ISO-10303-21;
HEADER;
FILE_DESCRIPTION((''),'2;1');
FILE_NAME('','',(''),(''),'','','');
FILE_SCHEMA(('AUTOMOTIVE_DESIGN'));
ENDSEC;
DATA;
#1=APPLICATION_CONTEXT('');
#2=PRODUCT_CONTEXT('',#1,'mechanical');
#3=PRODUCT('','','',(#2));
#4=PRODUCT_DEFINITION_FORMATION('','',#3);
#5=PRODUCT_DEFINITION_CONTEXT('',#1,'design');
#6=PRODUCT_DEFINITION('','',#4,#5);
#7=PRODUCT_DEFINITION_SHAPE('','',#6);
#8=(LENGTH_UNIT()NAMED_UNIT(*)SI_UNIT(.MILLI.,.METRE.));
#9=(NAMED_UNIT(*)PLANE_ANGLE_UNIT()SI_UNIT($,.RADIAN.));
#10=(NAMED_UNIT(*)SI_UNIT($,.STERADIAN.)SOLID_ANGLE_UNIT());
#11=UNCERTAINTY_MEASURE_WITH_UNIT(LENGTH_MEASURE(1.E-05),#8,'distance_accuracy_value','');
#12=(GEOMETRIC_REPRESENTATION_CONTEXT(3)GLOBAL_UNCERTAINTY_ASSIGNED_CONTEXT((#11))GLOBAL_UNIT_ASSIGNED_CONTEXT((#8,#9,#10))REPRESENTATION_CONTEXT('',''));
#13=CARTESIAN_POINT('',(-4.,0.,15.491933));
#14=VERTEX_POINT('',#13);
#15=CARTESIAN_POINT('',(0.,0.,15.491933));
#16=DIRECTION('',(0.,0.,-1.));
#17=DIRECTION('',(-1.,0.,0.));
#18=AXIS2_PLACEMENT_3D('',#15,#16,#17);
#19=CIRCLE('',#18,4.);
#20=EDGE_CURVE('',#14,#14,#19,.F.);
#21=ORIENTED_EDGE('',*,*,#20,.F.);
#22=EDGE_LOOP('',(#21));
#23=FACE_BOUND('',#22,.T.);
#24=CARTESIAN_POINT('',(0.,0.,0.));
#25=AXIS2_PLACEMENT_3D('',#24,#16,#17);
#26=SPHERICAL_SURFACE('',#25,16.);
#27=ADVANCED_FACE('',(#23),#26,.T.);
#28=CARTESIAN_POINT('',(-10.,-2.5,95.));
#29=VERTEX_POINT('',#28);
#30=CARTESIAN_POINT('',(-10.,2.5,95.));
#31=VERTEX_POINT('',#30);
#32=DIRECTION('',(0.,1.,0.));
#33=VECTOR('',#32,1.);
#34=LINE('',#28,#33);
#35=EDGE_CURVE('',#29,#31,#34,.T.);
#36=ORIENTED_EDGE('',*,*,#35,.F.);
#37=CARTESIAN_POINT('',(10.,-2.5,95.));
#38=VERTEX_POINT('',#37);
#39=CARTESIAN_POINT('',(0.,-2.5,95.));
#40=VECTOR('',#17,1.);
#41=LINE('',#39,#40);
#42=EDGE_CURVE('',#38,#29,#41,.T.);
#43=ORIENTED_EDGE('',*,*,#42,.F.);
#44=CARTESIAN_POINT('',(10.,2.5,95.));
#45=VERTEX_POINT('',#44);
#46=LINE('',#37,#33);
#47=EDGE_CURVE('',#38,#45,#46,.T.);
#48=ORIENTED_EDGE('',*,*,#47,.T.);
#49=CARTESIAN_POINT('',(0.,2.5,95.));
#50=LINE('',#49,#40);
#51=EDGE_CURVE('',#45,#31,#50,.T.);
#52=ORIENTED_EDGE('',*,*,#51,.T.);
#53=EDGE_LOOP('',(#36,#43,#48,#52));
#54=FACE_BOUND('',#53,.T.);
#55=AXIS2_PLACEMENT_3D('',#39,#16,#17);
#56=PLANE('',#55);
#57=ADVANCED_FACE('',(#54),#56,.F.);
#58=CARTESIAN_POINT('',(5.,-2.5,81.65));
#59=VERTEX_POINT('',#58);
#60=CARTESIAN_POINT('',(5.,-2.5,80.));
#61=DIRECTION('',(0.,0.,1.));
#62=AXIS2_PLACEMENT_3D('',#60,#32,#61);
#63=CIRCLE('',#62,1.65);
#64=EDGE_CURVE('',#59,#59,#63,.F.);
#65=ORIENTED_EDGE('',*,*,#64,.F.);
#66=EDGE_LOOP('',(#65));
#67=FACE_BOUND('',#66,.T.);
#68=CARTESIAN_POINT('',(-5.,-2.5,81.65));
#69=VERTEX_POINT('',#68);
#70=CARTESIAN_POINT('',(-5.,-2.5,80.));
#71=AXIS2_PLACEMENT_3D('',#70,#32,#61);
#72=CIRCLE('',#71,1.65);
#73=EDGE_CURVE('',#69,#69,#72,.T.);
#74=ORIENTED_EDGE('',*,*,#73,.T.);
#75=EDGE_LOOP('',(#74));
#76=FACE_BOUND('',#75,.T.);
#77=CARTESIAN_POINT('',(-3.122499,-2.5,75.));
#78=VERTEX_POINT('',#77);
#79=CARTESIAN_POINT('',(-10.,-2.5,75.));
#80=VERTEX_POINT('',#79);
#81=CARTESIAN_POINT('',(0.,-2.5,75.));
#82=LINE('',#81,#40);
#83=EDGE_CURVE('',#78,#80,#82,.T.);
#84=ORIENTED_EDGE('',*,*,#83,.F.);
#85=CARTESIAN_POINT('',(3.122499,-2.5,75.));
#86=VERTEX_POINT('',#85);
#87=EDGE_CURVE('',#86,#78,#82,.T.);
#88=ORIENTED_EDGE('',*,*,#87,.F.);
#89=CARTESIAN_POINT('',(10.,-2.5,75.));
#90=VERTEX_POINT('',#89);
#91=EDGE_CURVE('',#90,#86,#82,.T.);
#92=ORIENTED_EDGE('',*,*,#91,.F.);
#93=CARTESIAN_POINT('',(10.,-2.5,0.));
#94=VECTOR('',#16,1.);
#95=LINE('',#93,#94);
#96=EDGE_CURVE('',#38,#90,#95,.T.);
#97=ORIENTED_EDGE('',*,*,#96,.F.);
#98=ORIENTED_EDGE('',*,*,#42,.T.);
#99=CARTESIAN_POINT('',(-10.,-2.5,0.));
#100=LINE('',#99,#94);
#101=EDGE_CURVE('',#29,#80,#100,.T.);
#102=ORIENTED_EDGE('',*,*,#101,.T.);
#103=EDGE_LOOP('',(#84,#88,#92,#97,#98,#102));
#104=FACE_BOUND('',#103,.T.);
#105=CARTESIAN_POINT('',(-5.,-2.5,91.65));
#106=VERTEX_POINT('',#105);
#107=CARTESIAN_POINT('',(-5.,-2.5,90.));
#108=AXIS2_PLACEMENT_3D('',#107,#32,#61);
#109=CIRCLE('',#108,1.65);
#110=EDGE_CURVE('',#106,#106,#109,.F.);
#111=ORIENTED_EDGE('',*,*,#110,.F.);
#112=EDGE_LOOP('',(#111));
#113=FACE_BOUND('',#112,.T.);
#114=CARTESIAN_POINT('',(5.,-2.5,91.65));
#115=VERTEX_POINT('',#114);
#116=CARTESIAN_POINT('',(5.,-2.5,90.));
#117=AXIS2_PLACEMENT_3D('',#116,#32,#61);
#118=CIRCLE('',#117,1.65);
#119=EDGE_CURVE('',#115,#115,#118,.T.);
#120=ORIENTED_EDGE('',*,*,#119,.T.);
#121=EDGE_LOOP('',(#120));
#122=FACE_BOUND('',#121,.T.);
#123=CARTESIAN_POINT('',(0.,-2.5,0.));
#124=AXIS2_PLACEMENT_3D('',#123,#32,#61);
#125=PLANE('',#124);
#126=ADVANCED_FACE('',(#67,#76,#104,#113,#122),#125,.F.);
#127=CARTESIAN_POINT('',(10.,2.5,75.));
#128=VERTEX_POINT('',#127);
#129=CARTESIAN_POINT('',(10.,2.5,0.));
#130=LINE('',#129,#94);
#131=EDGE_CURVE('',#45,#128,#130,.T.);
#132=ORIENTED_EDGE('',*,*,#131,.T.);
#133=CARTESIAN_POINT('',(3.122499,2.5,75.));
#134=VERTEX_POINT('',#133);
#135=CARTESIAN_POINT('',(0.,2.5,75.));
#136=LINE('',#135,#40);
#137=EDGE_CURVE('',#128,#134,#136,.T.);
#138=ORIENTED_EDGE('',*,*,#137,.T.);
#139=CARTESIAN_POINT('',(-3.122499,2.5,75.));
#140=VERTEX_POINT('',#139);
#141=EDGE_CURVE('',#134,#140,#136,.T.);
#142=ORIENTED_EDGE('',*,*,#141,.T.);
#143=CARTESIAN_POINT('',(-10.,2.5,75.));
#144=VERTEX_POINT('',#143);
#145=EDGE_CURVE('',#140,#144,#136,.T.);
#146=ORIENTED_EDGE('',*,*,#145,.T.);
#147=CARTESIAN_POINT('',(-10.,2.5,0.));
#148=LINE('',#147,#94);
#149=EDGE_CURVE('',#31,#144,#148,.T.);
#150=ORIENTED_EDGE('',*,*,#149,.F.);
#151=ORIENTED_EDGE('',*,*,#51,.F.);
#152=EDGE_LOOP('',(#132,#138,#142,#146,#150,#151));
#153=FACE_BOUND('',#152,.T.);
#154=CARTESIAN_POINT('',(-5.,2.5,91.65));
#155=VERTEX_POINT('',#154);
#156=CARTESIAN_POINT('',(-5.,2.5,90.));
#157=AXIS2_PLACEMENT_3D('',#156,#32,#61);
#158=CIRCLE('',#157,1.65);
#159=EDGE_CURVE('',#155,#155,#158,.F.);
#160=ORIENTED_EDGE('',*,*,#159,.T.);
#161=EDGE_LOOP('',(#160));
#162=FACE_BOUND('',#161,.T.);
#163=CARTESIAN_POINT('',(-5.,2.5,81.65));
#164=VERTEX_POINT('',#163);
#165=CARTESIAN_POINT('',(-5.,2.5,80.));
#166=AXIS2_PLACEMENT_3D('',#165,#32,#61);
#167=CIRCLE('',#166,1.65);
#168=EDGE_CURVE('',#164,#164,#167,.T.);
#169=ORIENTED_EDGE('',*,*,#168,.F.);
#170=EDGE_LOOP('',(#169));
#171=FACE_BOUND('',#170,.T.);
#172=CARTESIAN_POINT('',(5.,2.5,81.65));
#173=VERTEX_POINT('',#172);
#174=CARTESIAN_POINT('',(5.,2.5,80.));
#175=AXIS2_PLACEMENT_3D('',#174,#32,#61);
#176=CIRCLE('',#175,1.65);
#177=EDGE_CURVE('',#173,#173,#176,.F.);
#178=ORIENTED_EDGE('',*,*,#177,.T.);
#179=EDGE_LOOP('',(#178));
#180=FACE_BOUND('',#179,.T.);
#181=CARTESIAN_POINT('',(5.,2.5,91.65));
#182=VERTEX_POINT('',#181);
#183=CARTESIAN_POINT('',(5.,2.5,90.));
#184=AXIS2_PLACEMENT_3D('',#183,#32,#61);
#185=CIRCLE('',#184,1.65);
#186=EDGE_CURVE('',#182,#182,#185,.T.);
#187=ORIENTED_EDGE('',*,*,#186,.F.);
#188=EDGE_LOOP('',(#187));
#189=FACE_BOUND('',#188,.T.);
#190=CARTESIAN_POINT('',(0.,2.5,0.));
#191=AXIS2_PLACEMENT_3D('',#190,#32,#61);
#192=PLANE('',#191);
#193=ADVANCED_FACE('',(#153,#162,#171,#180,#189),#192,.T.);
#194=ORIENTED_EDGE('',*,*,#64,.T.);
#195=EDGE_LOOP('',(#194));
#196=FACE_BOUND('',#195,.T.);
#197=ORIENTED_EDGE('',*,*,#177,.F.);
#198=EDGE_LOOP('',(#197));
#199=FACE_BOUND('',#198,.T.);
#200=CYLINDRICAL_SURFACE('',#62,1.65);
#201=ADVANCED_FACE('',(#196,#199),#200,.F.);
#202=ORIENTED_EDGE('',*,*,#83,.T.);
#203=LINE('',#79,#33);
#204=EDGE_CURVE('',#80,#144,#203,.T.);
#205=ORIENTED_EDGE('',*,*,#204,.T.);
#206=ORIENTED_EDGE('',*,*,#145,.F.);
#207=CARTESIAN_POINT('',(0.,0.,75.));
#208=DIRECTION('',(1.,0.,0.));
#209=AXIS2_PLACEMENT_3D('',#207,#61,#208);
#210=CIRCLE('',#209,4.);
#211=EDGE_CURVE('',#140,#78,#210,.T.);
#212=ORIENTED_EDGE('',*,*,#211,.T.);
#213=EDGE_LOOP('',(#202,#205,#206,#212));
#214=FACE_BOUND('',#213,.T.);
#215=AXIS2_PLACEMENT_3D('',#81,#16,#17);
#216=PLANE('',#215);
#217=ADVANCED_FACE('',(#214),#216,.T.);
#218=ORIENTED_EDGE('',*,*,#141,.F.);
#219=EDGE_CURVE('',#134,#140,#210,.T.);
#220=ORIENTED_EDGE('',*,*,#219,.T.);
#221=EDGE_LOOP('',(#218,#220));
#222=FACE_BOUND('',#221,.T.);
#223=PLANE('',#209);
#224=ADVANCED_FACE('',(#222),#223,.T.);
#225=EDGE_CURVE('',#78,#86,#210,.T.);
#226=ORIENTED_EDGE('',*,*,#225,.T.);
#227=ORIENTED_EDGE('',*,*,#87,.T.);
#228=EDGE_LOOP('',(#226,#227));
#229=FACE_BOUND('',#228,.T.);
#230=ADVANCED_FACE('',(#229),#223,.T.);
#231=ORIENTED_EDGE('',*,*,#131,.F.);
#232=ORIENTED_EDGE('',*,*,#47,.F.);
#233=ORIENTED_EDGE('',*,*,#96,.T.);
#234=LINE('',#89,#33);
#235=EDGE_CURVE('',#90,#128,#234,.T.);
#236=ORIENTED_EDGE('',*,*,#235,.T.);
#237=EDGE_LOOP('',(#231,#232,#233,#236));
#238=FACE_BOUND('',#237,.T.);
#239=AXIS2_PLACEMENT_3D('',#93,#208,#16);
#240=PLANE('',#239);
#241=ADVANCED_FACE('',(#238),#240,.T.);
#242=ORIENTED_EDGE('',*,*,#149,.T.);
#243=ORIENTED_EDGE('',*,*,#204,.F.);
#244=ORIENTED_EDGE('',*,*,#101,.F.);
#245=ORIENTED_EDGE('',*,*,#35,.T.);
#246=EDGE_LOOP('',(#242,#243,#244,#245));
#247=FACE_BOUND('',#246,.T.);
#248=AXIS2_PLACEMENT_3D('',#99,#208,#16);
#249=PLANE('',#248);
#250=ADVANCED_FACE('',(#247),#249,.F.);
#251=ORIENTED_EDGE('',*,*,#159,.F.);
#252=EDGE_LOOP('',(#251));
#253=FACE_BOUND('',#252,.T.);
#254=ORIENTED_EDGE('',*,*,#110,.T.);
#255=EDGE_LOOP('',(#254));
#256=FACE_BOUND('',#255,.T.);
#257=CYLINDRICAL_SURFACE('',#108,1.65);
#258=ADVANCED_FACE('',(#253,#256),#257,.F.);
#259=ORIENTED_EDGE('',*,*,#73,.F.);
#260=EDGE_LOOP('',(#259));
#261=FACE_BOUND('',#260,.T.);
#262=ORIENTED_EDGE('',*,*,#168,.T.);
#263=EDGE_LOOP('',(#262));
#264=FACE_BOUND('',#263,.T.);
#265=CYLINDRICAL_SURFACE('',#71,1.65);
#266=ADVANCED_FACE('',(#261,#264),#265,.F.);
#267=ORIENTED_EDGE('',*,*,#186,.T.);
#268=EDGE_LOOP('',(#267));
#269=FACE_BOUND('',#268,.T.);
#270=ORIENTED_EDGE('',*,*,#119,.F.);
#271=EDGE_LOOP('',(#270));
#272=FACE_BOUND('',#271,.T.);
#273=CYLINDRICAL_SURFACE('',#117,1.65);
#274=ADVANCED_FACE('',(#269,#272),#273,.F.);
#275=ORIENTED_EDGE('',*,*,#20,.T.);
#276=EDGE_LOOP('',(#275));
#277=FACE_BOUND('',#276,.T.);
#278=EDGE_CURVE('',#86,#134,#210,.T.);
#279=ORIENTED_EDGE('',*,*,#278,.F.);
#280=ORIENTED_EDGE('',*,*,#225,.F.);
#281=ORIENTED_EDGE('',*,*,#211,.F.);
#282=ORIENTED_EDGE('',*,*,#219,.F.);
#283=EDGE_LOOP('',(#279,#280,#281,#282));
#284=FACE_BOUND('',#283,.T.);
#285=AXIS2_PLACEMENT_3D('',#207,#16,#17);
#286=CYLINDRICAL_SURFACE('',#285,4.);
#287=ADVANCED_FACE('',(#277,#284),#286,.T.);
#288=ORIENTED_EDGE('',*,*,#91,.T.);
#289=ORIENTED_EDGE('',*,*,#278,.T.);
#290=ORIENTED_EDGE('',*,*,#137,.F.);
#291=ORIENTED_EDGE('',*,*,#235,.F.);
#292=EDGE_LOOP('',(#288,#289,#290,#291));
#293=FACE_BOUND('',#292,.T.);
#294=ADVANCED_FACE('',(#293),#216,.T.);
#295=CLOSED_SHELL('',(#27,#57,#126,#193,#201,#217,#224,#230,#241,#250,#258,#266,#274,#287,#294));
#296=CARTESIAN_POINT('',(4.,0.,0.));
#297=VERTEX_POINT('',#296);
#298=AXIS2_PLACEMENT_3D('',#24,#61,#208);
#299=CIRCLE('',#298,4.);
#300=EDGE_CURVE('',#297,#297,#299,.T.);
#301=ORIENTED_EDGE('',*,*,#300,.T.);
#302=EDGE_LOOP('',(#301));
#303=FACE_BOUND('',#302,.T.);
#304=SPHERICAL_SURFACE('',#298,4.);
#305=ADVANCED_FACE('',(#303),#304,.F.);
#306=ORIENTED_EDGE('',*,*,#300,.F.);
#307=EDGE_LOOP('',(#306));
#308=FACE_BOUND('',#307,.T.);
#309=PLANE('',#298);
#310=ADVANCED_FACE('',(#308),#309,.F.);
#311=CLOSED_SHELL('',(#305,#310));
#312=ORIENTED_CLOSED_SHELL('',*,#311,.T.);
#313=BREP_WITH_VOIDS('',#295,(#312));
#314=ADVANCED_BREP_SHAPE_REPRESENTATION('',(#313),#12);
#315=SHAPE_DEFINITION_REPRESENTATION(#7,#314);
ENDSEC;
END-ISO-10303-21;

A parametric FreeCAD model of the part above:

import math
import FreeCAD as App
import Part
import Sketcher

V = App.Vector
Q = App.Units.Quantity

doc = App.newDocument("Part")
body = doc.addObject("PartDesign::Body", "Body")

# Sketch on XY plane
sketch1 = body.newObject("Sketcher::SketchObject", "Sketch")
sketch1.AttachmentSupport = (doc.getObject("XY_Plane"), [""])
sketch1.MapMode = "FlatFace"
sketch1.addGeometry(Part.ArcOfCircle(Part.Circle(V(0, 0, 0), V(0, 0, 1), 16), math.radians(-90), math.radians(0)), False)
sketch1.addGeometry(Part.ArcOfCircle(Part.Circle(V(0, 0, 0), V(0, 0, 1), 16), math.radians(0), math.radians(90)), False)
sketch1.addGeometry(Part.LineSegment(V(0, 16, 0), V(0, 4, 0)), False)
sketch1.addGeometry(Part.ArcOfCircle(Part.Circle(V(0, 0, 0), V(0, 0, 1), 4), math.radians(0), math.radians(90)), False)
sketch1.addGeometry(Part.ArcOfCircle(Part.Circle(V(0, 0, 0), V(0, 0, 1), 4), math.radians(-90), math.radians(0)), False)
sketch1.addGeometry(Part.LineSegment(V(0, -4, 0), V(0, -16, 0)), False)
sketch1.addConstraint(Sketcher.Constraint("Tangent", 0, 2, 1, 1))
sketch1.addConstraint(Sketcher.Constraint("Coincident", 1, 2, 2, 1))
sketch1.addConstraint(Sketcher.Constraint("Coincident", 2, 2, 3, 2))
sketch1.addConstraint(Sketcher.Constraint("Tangent", 3, 1, 4, 2))
sketch1.addConstraint(Sketcher.Constraint("Coincident", 4, 1, 5, 1))
sketch1.addConstraint(Sketcher.Constraint("Coincident", 5, 2, 0, 1))
sketch1.addConstraint(Sketcher.Constraint("Vertical", 2))
sketch1.addConstraint(Sketcher.Constraint("Vertical", 5))
sketch1.addConstraint(Sketcher.Constraint("Coincident", 0, 3, -1, 1))
sketch1.addConstraint(Sketcher.Constraint("Coincident", 3, 3, -1, 1))
sketch1.addConstraint(Sketcher.Constraint("Equal", 0, 1))
sketch1.addConstraint(Sketcher.Constraint("Equal", 3, 4))
sketch1.addConstraint(Sketcher.Constraint("PointOnObject", 0, 2, -1))
sketch1.addConstraint(Sketcher.Constraint("PointOnObject", 1, 2, -2))
sketch1.addConstraint(Sketcher.Constraint("PointOnObject", 3, 1, -1))
sketch1.addConstraint(Sketcher.Constraint("PointOnObject", 4, 1, -2))
sketch1.addConstraint(Sketcher.Constraint("Radius", 0, Q("16 mm")))
sketch1.addConstraint(Sketcher.Constraint("Radius", 3, Q("4 mm")))
revolution = body.newObject("PartDesign::Revolution", "Revolution")
revolution.Profile = sketch1
revolution.ReferenceAxis = (sketch1, ["V_Axis"])
revolution.Angle = 360

# Sketch on XY plane
sketch2 = body.newObject("Sketcher::SketchObject", "Sketch001")
sketch2.AttachmentSupport = (doc.getObject("XY_Plane"), [""])
sketch2.MapMode = "FlatFace"
sketch2.addGeometry(Part.Circle(V(0, 0, 0), V(0, 0, 1), 4), False)
sketch2.addConstraint(Sketcher.Constraint("Coincident", 0, 3, -1, 1))
sketch2.addConstraint(Sketcher.Constraint("Diameter", 0, Q("8 mm")))
pad1 = body.newObject("PartDesign::Pad", "Pad")
pad1.Profile = sketch2
pad1.Length = 75

# Sketch on XZ plane
sketch3 = body.newObject("Sketcher::SketchObject", "Sketch002")
sketch3.AttachmentSupport = (doc.getObject("XZ_Plane"), [""])
sketch3.MapMode = "FlatFace"
sketch3.addGeometry(Part.LineSegment(V(10, 95, 0), V(10, 75, 0)), False)
sketch3.addGeometry(Part.LineSegment(V(10, 75, 0), V(-10, 75, 0)), False)
sketch3.addGeometry(Part.LineSegment(V(-10, 75, 0), V(-10, 95, 0)), False)
sketch3.addGeometry(Part.LineSegment(V(-10, 95, 0), V(10, 95, 0)), False)
sketch3.addGeometry(Part.Circle(V(-5, 90, 0), V(0, 0, 1), 1.6), False)
sketch3.addGeometry(Part.Circle(V(5, 90, 0), V(0, 0, 1), 1.6), False)
sketch3.addGeometry(Part.Circle(V(-5, 80, 0), V(0, 0, 1), 1.6), False)
sketch3.addGeometry(Part.Circle(V(5, 80, 0), V(0, 0, 1), 1.6), False)
sketch3.addConstraint(Sketcher.Constraint("Coincident", 0, 2, 1, 1))
sketch3.addConstraint(Sketcher.Constraint("Coincident", 1, 2, 2, 1))
sketch3.addConstraint(Sketcher.Constraint("Coincident", 2, 2, 3, 1))
sketch3.addConstraint(Sketcher.Constraint("Coincident", 3, 2, 0, 1))
sketch3.addConstraint(Sketcher.Constraint("Vertical", 0))
sketch3.addConstraint(Sketcher.Constraint("Horizontal", 1))
sketch3.addConstraint(Sketcher.Constraint("Vertical", 2))
sketch3.addConstraint(Sketcher.Constraint("Horizontal", 3))
sketch3.addConstraint(Sketcher.Constraint("Equal", 4, 5))
sketch3.addConstraint(Sketcher.Constraint("Equal", 5, 6))
sketch3.addConstraint(Sketcher.Constraint("Equal", 6, 7))
sketch3.addConstraint(Sketcher.Constraint("Symmetric", 4, 3, 5, 3, -2))
sketch3.addConstraint(Sketcher.Constraint("Symmetric", 6, 3, 7, 3, -2))
sketch3.addConstraint(Sketcher.Constraint("Vertical", 4, 3, 6, 3))
sketch3.addConstraint(Sketcher.Constraint("Equal", 3, 0))
sketch3.addConstraint(Sketcher.Constraint("Diameter", 4, Q("3.3 mm")))
sketch3.addConstraint(Sketcher.Constraint("DistanceX", 1, 2, 1, 1, Q("20 mm")))
sketch3.addConstraint(Sketcher.Constraint("DistanceX", 4, 3, -1, 1, Q("5 mm")))
sketch3.addConstraint(Sketcher.Constraint("DistanceY", -1, 1, 4, 3, Q("90 mm")))
sketch3.addConstraint(Sketcher.Constraint("DistanceY", -1, 1, 6, 3, Q("80 mm")))
sketch3.addConstraint(Sketcher.Constraint("DistanceX", -1, 1, 0, 2, Q("10 mm")))
sketch3.addConstraint(Sketcher.Constraint("DistanceY", -1, 1, 0, 2, Q("75 mm")))
pad2 = body.newObject("PartDesign::Pad", "Pad001")
pad2.Profile = sketch3
pad2.Type = "TwoLengths"
pad2.Length = 2.5
pad2.Length2 = 2.5
pad2.Reversed = True

doc.recompute()
